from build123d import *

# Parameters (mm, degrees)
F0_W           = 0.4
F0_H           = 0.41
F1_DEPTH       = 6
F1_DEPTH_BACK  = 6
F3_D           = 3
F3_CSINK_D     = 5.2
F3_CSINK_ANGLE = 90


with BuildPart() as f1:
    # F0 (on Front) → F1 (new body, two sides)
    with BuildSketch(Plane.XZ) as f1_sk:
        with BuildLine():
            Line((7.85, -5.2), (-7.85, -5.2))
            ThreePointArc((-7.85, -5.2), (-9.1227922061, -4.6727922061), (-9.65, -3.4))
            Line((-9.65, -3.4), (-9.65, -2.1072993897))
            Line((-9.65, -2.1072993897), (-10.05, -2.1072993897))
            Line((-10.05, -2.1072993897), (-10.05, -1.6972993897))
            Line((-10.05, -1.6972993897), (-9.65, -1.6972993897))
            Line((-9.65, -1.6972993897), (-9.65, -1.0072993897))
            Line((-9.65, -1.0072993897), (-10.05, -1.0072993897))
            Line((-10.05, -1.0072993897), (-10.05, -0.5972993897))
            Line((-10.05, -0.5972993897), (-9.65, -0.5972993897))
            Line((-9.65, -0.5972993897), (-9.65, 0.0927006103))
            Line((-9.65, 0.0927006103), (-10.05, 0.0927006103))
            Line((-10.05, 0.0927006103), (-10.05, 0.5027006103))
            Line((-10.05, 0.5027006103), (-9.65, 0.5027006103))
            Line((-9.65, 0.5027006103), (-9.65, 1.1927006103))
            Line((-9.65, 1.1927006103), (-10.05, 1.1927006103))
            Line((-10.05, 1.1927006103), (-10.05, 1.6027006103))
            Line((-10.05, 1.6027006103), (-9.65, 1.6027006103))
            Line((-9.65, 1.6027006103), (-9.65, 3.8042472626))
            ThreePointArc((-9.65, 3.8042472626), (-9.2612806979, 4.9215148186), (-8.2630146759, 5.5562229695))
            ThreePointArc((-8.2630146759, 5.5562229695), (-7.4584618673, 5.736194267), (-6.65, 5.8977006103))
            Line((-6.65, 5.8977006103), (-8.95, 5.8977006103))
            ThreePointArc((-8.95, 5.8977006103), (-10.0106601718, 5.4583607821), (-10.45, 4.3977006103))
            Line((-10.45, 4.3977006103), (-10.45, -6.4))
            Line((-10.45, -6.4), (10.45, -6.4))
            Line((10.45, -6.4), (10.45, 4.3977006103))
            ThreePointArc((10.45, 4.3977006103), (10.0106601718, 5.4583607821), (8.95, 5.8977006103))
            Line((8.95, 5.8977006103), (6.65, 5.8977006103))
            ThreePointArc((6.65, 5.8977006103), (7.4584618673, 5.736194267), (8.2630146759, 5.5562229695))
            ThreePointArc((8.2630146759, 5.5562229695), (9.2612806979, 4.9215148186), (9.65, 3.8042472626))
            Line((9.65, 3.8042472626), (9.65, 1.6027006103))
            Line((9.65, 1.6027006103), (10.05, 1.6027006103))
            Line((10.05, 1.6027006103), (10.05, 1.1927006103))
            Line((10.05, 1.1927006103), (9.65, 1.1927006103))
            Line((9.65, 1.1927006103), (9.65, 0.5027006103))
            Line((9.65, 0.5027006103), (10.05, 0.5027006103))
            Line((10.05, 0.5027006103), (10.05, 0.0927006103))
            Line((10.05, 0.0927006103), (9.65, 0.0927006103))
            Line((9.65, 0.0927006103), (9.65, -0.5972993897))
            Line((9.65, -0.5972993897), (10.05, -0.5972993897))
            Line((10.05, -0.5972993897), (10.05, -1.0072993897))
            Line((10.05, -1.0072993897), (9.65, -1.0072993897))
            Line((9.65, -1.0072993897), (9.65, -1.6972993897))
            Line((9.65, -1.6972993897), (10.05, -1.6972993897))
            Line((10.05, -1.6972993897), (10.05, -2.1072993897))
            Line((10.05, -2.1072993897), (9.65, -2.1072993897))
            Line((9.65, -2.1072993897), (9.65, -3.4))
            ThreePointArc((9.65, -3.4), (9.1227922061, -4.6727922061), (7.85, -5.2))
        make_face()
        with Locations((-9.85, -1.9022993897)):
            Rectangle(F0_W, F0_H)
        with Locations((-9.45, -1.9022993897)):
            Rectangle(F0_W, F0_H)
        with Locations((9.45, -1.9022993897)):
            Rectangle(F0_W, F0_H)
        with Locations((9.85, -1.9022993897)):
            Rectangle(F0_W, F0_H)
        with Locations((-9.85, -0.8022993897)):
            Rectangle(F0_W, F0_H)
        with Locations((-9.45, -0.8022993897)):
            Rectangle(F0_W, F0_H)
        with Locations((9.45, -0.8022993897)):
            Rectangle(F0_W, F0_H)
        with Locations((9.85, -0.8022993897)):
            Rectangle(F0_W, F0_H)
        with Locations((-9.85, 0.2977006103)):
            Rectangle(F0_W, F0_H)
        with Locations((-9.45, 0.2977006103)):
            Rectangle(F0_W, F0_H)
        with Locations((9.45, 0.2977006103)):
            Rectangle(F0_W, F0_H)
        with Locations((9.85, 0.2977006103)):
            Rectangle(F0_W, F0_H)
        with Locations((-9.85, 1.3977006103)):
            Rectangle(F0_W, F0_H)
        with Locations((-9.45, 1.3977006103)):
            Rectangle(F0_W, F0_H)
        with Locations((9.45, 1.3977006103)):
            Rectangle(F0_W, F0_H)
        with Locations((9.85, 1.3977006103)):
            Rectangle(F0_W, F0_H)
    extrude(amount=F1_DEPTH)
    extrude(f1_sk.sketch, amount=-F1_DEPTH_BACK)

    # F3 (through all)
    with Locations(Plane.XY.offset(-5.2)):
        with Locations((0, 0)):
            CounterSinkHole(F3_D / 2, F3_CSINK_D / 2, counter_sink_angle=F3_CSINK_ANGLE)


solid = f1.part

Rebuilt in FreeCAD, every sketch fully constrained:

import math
import FreeCAD as App
import Part
import Sketcher

V = App.Vector
Q = App.Units.Quantity

doc = App.newDocument("Part")
body = doc.addObject("PartDesign::Body", "Body")

sketch1 = body.newObject("Sketcher::SketchObject", "Sketch")
sketch1.AttachmentSupport = (doc.getObject("XZ_Plane"), [""])
sketch1.MapMode = "FlatFace"
sketch1.addGeometry(Part.LineSegment(V(7.85, -5.2, 0), V(-7.85, -5.2, 0)), False)
sketch1.addGeometry(Part.ArcOfCircle(Part.Circle(V(-7.85, -3.4, 0), V(0, 0, 1), 1.8), math.radians(180), math.radians(270)), False)
sketch1.addGeometry(Part.LineSegment(V(-9.65, -3.4, 0), V(-9.65, -2.11, 0)), False)
sketch1.addGeometry(Part.LineSegment(V(-9.65, -2.11, 0), V(-9.25, -2.11, 0)), False)
sketch1.addGeometry(Part.LineSegment(V(-9.25, -2.11, 0), V(-9.25, -1.7, 0)), False)
sketch1.addGeometry(Part.LineSegment(V(-9.25, -1.7, 0), V(-9.65, -1.7, 0)), False)
sketch1.addGeometry(Part.LineSegment(V(-9.65, -1.7, 0), V(-9.65, -1.01, 0)), False)
sketch1.addGeometry(Part.LineSegment(V(-9.65, -1.01, 0), V(-9.25, -1.01, 0)), False)
sketch1.addGeometry(Part.LineSegment(V(-9.25, -1.01, 0), V(-9.25, -0.6, 0)), False)
sketch1.addGeometry(Part.LineSegment(V(-9.25, -0.6, 0), V(-9.65, -0.6, 0)), False)
sketch1.addGeometry(Part.LineSegment(V(-9.65, -0.6, 0), V(-9.65, 0.09, 0)), False)
sketch1.addGeometry(Part.LineSegment(V(-9.65, 0.09, 0), V(-9.25, 0.09, 0)), False)
sketch1.addGeometry(Part.LineSegment(V(-9.25, 0.09, 0), V(-9.25, 0.5, 0)), False)
sketch1.addGeometry(Part.LineSegment(V(-9.25, 0.5, 0), V(-9.65, 0.5, 0)), False)
sketch1.addGeometry(Part.LineSegment(V(-9.65, 0.5, 0), V(-9.65, 1.19, 0)), False)
sketch1.addGeometry(Part.LineSegment(V(-9.65, 1.19, 0), V(-9.25, 1.19, 0)), False)
sketch1.addGeometry(Part.LineSegment(V(-9.25, 1.19, 0), V(-9.25, 1.6, 0)), False)
sketch1.addGeometry(Part.LineSegment(V(-9.25, 1.6, 0), V(-9.65, 1.6, 0)), False)
sketch1.addGeometry(Part.LineSegment(V(-9.65, 1.6, 0), V(-9.65, 3.8, 0)), False)
sketch1.addGeometry(Part.ArcOfCircle(Part.Circle(V(-7.85, 3.8, 0), V(0, 0, 1), 1.8), math.radians(103), math.radians(180)), False)
sketch1.addGeometry(Part.ArcOfCircle(Part.Circle(V(0, -29.49, 0), V(0, 0, 1), 36.01), math.radians(100.64), math.radians(103.26)), False)
sketch1.addGeometry(Part.LineSegment(V(-6.65, 5.9, 0), V(-8.95, 5.9, 0)), False)
sketch1.addGeometry(Part.ArcOfCircle(Part.Circle(V(-8.95, 4.4, 0), V(0, 0, 1), 1.5), math.radians(90), math.radians(180)), False)
sketch1.addGeometry(Part.LineSegment(V(-10.45, 4.4, 0), V(-10.45, -6.4, 0)), False)
sketch1.addGeometry(Part.LineSegment(V(-10.45, -6.4, 0), V(10.45, -6.4, 0)), False)
sketch1.addGeometry(Part.LineSegment(V(10.45, -6.4, 0), V(10.45, 4.4, 0)), False)
sketch1.addGeometry(Part.ArcOfCircle(Part.Circle(V(8.95, 4.4, 0), V(0, 0, 1), 1.5), math.radians(0), math.radians(90)), False)
sketch1.addGeometry(Part.LineSegment(V(8.95, 5.9, 0), V(6.65, 5.9, 0)), False)
sketch1.addGeometry(Part.ArcOfCircle(Part.Circle(V(0, -29.49, 0), V(0, 0, 1), 36.01), math.radians(76.74), math.radians(79.36)), False)
sketch1.addGeometry(Part.ArcOfCircle(Part.Circle(V(7.85, 3.8, 0), V(0, 0, 1), 1.8), math.radians(0), math.radians(77)), False)
sketch1.addGeometry(Part.LineSegment(V(9.65, 3.8, 0), V(9.65, 1.6, 0)), False)
sketch1.addGeometry(Part.LineSegment(V(9.65, 1.6, 0), V(9.25, 1.6, 0)), False)
sketch1.addGeometry(Part.LineSegment(V(9.25, 1.6, 0), V(9.25, 1.19, 0)), False)
sketch1.addGeometry(Part.LineSegment(V(9.25, 1.19, 0), V(9.65, 1.19, 0)), False)
sketch1.addGeometry(Part.LineSegment(V(9.65, 1.19, 0), V(9.65, 0.5, 0)), False)
sketch1.addGeometry(Part.LineSegment(V(9.65, 0.5, 0), V(9.25, 0.5, 0)), False)
sketch1.addGeometry(Part.LineSegment(V(9.25, 0.5, 0), V(9.25, 0.09, 0)), False)
sketch1.addGeometry(Part.LineSegment(V(9.25, 0.09, 0), V(9.65, 0.09, 0)), False)
sketch1.addGeometry(Part.LineSegment(V(9.65, 0.09, 0), V(9.65, -0.6, 0)), False)
sketch1.addGeometry(Part.LineSegment(V(9.65, -0.6, 0), V(9.25, -0.6, 0)), False)
sketch1.addGeometry(Part.LineSegment(V(9.25, -0.6, 0), V(9.25, -1.01, 0)), False)
sketch1.addGeometry(Part.LineSegment(V(9.25, -1.01, 0), V(9.65, -1.01, 0)), False)
sketch1.addGeometry(Part.LineSegment(V(9.65, -1.01, 0), V(9.65, -1.7, 0)), False)
sketch1.addGeometry(Part.LineSegment(V(9.65, -1.7, 0), V(9.25, -1.7, 0)), False)
sketch1.addGeometry(Part.LineSegment(V(9.25, -1.7, 0), V(9.25, -2.11, 0)), False)
sketch1.addGeometry(Part.LineSegment(V(9.25, -2.11, 0), V(9.65, -2.11, 0)), False)
sketch1.addGeometry(Part.LineSegment(V(9.65, -2.11, 0), V(9.65, -3.4, 0)), False)
sketch1.addGeometry(Part.ArcOfCircle(Part.Circle(V(7.85, -3.4, 0), V(0, 0, 1), 1.8), math.radians(-90), math.radians(0)), False)
sketch1.addConstraint(Sketcher.Constraint("Tangent", 0, 2, 1, 2))
sketch1.addConstraint(Sketcher.Constraint("Tangent", 1, 1, 2, 1))
sketch1.addConstraint(Sketcher.Constraint("Coincident", 2, 2, 3, 1))
sketch1.addConstraint(Sketcher.Constraint("Coincident", 3, 2, 4, 1))
sketch1.addConstraint(Sketcher.Constraint("Coincident", 4, 2, 5, 1))
sketch1.addConstraint(Sketcher.Constraint("Coincident", 5, 2, 6, 1))
sketch1.addConstraint(Sketcher.Constraint("Coincident", 6, 2, 7, 1))
sketch1.addConstraint(Sketcher.Constraint("Coincident", 7, 2, 8, 1))
sketch1.addConstraint(Sketcher.Constraint("Coincident", 8, 2, 9, 1))
sketch1.addConstraint(Sketcher.Constraint("Coincident", 9, 2, 10, 1))
sketch1.addConstraint(Sketcher.Constraint("Coincident", 10, 2, 11, 1))
sketch1.addConstraint(Sketcher.Constraint("Coincident", 11, 2, 12, 1))
sketch1.addConstraint(Sketcher.Constraint("Coincident", 12, 2, 13, 1))
sketch1.addConstraint(Sketcher.Constraint("Coincident", 13, 2, 14, 1))
sketch1.addConstraint(Sketcher.Constraint("Coincident", 14, 2, 15, 1))
sketch1.addConstraint(Sketcher.Constraint("Coincident", 15, 2, 16, 1))
sketch1.addConstraint(Sketcher.Constraint("Coincident", 16, 2, 17, 1))
sketch1.addConstraint(Sketcher.Constraint("Coincident", 17, 2, 18, 1))
sketch1.addConstraint(Sketcher.Constraint("Tangent", 18, 2, 19, 2))
sketch1.addConstraint(Sketcher.Constraint("Tangent", 19, 1, 20, 2))
sketch1.addConstraint(Sketcher.Constraint("Coincident", 20, 1, 21, 1))
sketch1.addConstraint(Sketcher.Constraint("Tangent", 21, 2, 22, 1))
sketch1.addConstraint(Sketcher.Constraint("Tangent", 22, 2, 23, 1))
sketch1.addConstraint(Sketcher.Constraint("Coincident", 23, 2, 24, 1))
sketch1.addConstraint(Sketcher.Constraint("Coincident", 24, 2, 25, 1))
sketch1.addConstraint(Sketcher.Constraint("Tangent", 25, 2, 26, 1))
sketch1.addConstraint(Sketcher.Constraint("Tangent", 26, 2, 27, 1))
sketch1.addConstraint(Sketcher.Constraint("Coincident", 27, 2, 28, 2))
sketch1.addConstraint(Sketcher.Constraint("Tangent", 28, 1, 29, 2))
sketch1.addConstraint(Sketcher.Constraint("Tangent", 29, 1, 30, 1))
sketch1.addConstraint(Sketcher.Constraint("Coincident", 30, 2, 31, 1))
sketch1.addConstraint(Sketcher.Constraint("Coincident", 31, 2, 32, 1))
sketch1.addConstraint(Sketcher.Constraint("Coincident", 32, 2, 33, 1))
sketch1.addConstraint(Sketcher.Constraint("Coincident", 33, 2, 34, 1))
sketch1.addConstraint(Sketcher.Constraint("Coincident", 34, 2, 35, 1))
sketch1.addConstraint(Sketcher.Constraint("Coincident", 35, 2, 36, 1))
sketch1.addConstraint(Sketcher.Constraint("Coincident", 36, 2, 37, 1))
sketch1.addConstraint(Sketcher.Constraint("Coincident", 37, 2, 38, 1))
sketch1.addConstraint(Sketcher.Constraint("Coincident", 38, 2, 39, 1))
sketch1.addConstraint(Sketcher.Constraint("Coincident", 39, 2, 40, 1))
sketch1.addConstraint(Sketcher.Constraint("Coincident", 40, 2, 41, 1))
sketch1.addConstraint(Sketcher.Constraint("Coincident", 41, 2, 42, 1))
sketch1.addConstraint(Sketcher.Constraint("Coincident", 42, 2, 43, 1))
sketch1.addConstraint(Sketcher.Constraint("Coincident", 43, 2, 44, 1))
sketch1.addConstraint(Sketcher.Constraint("Coincident", 44, 2, 45, 1))
sketch1.addConstraint(Sketcher.Constraint("Coincident", 45, 2, 46, 1))
sketch1.addConstraint(Sketcher.Constraint("Tangent", 46, 2, 47, 2))
sketch1.addConstraint(Sketcher.Constraint("Tangent", 47, 1, 0, 1))
sketch1.addConstraint(Sketcher.Constraint("Horizontal", 0))
sketch1.addConstraint(Sketcher.Constraint("Vertical", 2))
sketch1.addConstraint(Sketcher.Constraint("Horizontal", 3))
sketch1.addConstraint(Sketcher.Constraint("Vertical", 4))
sketch1.addConstraint(Sketcher.Constraint("Horizontal", 5))
sketch1.addConstraint(Sketcher.Constraint("Vertical", 6))
sketch1.addConstraint(Sketcher.Constraint("Horizontal", 7))
sketch1.addConstraint(Sketcher.Constraint("Vertical", 8))
sketch1.addConstraint(Sketcher.Constraint("Horizontal", 9))
sketch1.addConstraint(Sketcher.Constraint("Vertical", 10))
sketch1.addConstraint(Sketcher.Constraint("Horizontal", 11))
sketch1.addConstraint(Sketcher.Constraint("Vertical", 12))
sketch1.addConstraint(Sketcher.Constraint("Horizontal", 13))
sketch1.addConstraint(Sketcher.Constraint("Vertical", 14))
sketch1.addConstraint(Sketcher.Constraint("Horizontal", 15))
sketch1.addConstraint(Sketcher.Constraint("Vertical", 16))
sketch1.addConstraint(Sketcher.Constraint("Horizontal", 17))
sketch1.addConstraint(Sketcher.Constraint("Vertical", 18))
sketch1.addConstraint(Sketcher.Constraint("Horizontal", 21))
sketch1.addConstraint(Sketcher.Constraint("Vertical", 23))
sketch1.addConstraint(Sketcher.Constraint("Horizontal", 24))
sketch1.addConstraint(Sketcher.Constraint("Vertical", 25))
sketch1.addConstraint(Sketcher.Constraint("Horizontal", 27))
sketch1.addConstraint(Sketcher.Constraint("Vertical", 30))
sketch1.addConstraint(Sketcher.Constraint("Horizontal", 31))
sketch1.addConstraint(Sketcher.Constraint("Vertical", 32))
sketch1.addConstraint(Sketcher.Constraint("Horizontal", 33))
sketch1.addConstraint(Sketcher.Constraint("Vertical", 34))
sketch1.addConstraint(Sketcher.Constraint("Horizontal", 35))
sketch1.addConstraint(Sketcher.Constraint("Vertical", 36))
sketch1.addConstraint(Sketcher.Constraint("Horizontal", 37))
sketch1.addConstraint(Sketcher.Constraint("Vertical", 38))
sketch1.addConstraint(Sketcher.Constraint("Horizontal", 39))
sketch1.addConstraint(Sketcher.Constraint("Vertical", 40))
sketch1.addConstraint(Sketcher.Constraint("Horizontal", 41))
sketch1.addConstraint(Sketcher.Constraint("Vertical", 42))
sketch1.addConstraint(Sketcher.Constraint("Horizontal", 43))
sketch1.addConstraint(Sketcher.Constraint("Vertical", 44))
sketch1.addConstraint(Sketcher.Constraint("Horizontal", 45))
sketch1.addConstraint(Sketcher.Constraint("Vertical", 46))
sketch1.addConstraint(Sketcher.Constraint("Coincident", 28, 3, 20, 3))
sketch1.addConstraint(Sketcher.Constraint("Equal", 1, 19))
sketch1.addConstraint(Sketcher.Constraint("Equal", 22, 26))
sketch1.addConstraint(Sketcher.Constraint("Equal", 20, 28))
sketch1.addConstraint(Sketcher.Constraint("Equal", 19, 29))
sketch1.addConstraint(Sketcher.Constraint("Equal", 29, 47))
sketch1.addConstraint(Sketcher.Constraint("Symmetric", 22, 3, 26, 3, -2))
sketch1.addConstraint(Sketcher.Constraint("Symmetric", 19, 3, 29, 3, -2))
sketch1.addConstraint(Sketcher.Constraint("Symmetric", 16, 2, 31, 2, -2))
sketch1.addConstraint(Sketcher.Constraint("Symmetric", 14, 2, 33, 2, -2))
sketch1.addConstraint(Sketcher.Constraint("Symmetric", 12, 2, 35, 2, -2))
sketch1.addConstraint(Sketcher.Constraint("Symmetric", 10, 2, 37, 2, -2))
sketch1.addConstraint(Sketcher.Constraint("Symmetric", 8, 2, 39, 2, -2))
sketch1.addConstraint(Sketcher.Constraint("Symmetric", 6, 2, 41, 2, -2))
sketch1.addConstraint(Sketcher.Constraint("Symmetric", 4, 2, 43, 2, -2))
sketch1.addConstraint(Sketcher.Constraint("Symmetric", 2, 2, 45, 2, -2))
sketch1.addConstraint(Sketcher.Constraint("Vertical", 1, 3, 19, 3))
sketch1.addConstraint(Sketcher.Constraint("Vertical", 2, 2, 5, 2))
sketch1.addConstraint(Sketcher.Constraint("Vertical", 4, 2, 7, 2))
sketch1.addConstraint(Sketcher.Constraint("Vertical", 6, 2, 9, 2))
sketch1.addConstraint(Sketcher.Constraint("Vertical", 8, 2, 11, 2))
sketch1.addConstraint(Sketcher.Constraint("Vertical", 10, 2, 13, 2))
sketch1.addConstraint(Sketcher.Constraint("Vertical", 12, 2, 15, 2))
sketch1.addConstraint(Sketcher.Constraint("Equal", 4, 8))
sketch1.addConstraint(Sketcher.Constraint("Equal", 6, 10))
sketch1.addConstraint(Sketcher.Constraint("Equal", 8, 12))
sketch1.addConstraint(Sketcher.Constraint("Equal", 10, 14))
sketch1.addConstraint(Sketcher.Constraint("Equal", 12, 16))
sketch1.addConstraint(Sketcher.Constraint("Radius", 1, Q("1.8 mm")))
sketch1.addConstraint(Sketcher.Constraint("Radius", 22, Q("1.5 mm")))
sketch1.addConstraint(Sketcher.Constraint("DistanceX", 0, 2, 0, 1, Q("15.7 mm")))
sketch1.addConstraint(Sketcher.Constraint("DistanceX", 3, 1, 3, 2, Q("0.4 mm")))
sketch1.addConstraint(Sketcher.Constraint("DistanceX", 21, 2, 21, 1, Q("2.3 mm")))
sketch1.addConstraint(Sketcher.Constraint("DistanceX", 24, 1, 24, 2, Q("20.9 mm")))
sketch1.addConstraint(Sketcher.Constraint("DistanceY", 23, 2, 1, 1, Q("3 mm")))
sketch1.addConstraint(Sketcher.Constraint("DistanceY", 4, 1, 4, 2, Q("0.41 mm")))
sketch1.addConstraint(Sketcher.Constraint("DistanceY", 6, 1, 6, 2, Q("0.69 mm")))
sketch1.addConstraint(Sketcher.Constraint("DistanceY", 1, 3, -1, 1, Q("3.4 mm")))
sketch1.addConstraint(Sketcher.Constraint("Radius", 20, Q("36.011859 mm")))
sketch1.addConstraint(Sketcher.Constraint("DistanceY", 2, 1, 2, 2, Q("1.292701 mm")))
sketch1.addConstraint(Sketcher.Constraint("DistanceY", 23, 2, 23, 1, Q("10.797701 mm")))
pad1 = body.newObject("PartDesign::Pad", "Pad")
pad1.Profile = sketch1
pad1.Type = "TwoLengths"
pad1.Length = 6
pad1.Length2 = 6

sketch2 = body.newObject("Sketcher::SketchObject", "Sketch001")
sketch2.AttachmentSupport = (doc.getObject("XY_Plane"), [""])
sketch2.MapMode = "FlatFace"
sketch2.AttachmentOffset = App.Placement(V(0, 0, -5.2), App.Rotation())
sketch2.addGeometry(Part.Circle(V(0, 0, 0), V(0, 0, 1), 1.5), False)
sketch2.addConstraint(Sketcher.Constraint("Coincident", 0, 3, -1, 1))
sketch2.addConstraint(Sketcher.Constraint("Diameter", 0, Q("3 mm")))
doc.recompute()
hole = body.newObject("PartDesign::Hole", "Hole")
hole.Profile = sketch2
hole.ThreadType = "None"
hole.Diameter = 3
hole.DepthType = "ThroughAll"
hole.HoleCutType = "Countersink"
hole.HoleCutDiameter = 5.2
hole.HoleCutCountersinkAngle = 90

doc.recompute()
